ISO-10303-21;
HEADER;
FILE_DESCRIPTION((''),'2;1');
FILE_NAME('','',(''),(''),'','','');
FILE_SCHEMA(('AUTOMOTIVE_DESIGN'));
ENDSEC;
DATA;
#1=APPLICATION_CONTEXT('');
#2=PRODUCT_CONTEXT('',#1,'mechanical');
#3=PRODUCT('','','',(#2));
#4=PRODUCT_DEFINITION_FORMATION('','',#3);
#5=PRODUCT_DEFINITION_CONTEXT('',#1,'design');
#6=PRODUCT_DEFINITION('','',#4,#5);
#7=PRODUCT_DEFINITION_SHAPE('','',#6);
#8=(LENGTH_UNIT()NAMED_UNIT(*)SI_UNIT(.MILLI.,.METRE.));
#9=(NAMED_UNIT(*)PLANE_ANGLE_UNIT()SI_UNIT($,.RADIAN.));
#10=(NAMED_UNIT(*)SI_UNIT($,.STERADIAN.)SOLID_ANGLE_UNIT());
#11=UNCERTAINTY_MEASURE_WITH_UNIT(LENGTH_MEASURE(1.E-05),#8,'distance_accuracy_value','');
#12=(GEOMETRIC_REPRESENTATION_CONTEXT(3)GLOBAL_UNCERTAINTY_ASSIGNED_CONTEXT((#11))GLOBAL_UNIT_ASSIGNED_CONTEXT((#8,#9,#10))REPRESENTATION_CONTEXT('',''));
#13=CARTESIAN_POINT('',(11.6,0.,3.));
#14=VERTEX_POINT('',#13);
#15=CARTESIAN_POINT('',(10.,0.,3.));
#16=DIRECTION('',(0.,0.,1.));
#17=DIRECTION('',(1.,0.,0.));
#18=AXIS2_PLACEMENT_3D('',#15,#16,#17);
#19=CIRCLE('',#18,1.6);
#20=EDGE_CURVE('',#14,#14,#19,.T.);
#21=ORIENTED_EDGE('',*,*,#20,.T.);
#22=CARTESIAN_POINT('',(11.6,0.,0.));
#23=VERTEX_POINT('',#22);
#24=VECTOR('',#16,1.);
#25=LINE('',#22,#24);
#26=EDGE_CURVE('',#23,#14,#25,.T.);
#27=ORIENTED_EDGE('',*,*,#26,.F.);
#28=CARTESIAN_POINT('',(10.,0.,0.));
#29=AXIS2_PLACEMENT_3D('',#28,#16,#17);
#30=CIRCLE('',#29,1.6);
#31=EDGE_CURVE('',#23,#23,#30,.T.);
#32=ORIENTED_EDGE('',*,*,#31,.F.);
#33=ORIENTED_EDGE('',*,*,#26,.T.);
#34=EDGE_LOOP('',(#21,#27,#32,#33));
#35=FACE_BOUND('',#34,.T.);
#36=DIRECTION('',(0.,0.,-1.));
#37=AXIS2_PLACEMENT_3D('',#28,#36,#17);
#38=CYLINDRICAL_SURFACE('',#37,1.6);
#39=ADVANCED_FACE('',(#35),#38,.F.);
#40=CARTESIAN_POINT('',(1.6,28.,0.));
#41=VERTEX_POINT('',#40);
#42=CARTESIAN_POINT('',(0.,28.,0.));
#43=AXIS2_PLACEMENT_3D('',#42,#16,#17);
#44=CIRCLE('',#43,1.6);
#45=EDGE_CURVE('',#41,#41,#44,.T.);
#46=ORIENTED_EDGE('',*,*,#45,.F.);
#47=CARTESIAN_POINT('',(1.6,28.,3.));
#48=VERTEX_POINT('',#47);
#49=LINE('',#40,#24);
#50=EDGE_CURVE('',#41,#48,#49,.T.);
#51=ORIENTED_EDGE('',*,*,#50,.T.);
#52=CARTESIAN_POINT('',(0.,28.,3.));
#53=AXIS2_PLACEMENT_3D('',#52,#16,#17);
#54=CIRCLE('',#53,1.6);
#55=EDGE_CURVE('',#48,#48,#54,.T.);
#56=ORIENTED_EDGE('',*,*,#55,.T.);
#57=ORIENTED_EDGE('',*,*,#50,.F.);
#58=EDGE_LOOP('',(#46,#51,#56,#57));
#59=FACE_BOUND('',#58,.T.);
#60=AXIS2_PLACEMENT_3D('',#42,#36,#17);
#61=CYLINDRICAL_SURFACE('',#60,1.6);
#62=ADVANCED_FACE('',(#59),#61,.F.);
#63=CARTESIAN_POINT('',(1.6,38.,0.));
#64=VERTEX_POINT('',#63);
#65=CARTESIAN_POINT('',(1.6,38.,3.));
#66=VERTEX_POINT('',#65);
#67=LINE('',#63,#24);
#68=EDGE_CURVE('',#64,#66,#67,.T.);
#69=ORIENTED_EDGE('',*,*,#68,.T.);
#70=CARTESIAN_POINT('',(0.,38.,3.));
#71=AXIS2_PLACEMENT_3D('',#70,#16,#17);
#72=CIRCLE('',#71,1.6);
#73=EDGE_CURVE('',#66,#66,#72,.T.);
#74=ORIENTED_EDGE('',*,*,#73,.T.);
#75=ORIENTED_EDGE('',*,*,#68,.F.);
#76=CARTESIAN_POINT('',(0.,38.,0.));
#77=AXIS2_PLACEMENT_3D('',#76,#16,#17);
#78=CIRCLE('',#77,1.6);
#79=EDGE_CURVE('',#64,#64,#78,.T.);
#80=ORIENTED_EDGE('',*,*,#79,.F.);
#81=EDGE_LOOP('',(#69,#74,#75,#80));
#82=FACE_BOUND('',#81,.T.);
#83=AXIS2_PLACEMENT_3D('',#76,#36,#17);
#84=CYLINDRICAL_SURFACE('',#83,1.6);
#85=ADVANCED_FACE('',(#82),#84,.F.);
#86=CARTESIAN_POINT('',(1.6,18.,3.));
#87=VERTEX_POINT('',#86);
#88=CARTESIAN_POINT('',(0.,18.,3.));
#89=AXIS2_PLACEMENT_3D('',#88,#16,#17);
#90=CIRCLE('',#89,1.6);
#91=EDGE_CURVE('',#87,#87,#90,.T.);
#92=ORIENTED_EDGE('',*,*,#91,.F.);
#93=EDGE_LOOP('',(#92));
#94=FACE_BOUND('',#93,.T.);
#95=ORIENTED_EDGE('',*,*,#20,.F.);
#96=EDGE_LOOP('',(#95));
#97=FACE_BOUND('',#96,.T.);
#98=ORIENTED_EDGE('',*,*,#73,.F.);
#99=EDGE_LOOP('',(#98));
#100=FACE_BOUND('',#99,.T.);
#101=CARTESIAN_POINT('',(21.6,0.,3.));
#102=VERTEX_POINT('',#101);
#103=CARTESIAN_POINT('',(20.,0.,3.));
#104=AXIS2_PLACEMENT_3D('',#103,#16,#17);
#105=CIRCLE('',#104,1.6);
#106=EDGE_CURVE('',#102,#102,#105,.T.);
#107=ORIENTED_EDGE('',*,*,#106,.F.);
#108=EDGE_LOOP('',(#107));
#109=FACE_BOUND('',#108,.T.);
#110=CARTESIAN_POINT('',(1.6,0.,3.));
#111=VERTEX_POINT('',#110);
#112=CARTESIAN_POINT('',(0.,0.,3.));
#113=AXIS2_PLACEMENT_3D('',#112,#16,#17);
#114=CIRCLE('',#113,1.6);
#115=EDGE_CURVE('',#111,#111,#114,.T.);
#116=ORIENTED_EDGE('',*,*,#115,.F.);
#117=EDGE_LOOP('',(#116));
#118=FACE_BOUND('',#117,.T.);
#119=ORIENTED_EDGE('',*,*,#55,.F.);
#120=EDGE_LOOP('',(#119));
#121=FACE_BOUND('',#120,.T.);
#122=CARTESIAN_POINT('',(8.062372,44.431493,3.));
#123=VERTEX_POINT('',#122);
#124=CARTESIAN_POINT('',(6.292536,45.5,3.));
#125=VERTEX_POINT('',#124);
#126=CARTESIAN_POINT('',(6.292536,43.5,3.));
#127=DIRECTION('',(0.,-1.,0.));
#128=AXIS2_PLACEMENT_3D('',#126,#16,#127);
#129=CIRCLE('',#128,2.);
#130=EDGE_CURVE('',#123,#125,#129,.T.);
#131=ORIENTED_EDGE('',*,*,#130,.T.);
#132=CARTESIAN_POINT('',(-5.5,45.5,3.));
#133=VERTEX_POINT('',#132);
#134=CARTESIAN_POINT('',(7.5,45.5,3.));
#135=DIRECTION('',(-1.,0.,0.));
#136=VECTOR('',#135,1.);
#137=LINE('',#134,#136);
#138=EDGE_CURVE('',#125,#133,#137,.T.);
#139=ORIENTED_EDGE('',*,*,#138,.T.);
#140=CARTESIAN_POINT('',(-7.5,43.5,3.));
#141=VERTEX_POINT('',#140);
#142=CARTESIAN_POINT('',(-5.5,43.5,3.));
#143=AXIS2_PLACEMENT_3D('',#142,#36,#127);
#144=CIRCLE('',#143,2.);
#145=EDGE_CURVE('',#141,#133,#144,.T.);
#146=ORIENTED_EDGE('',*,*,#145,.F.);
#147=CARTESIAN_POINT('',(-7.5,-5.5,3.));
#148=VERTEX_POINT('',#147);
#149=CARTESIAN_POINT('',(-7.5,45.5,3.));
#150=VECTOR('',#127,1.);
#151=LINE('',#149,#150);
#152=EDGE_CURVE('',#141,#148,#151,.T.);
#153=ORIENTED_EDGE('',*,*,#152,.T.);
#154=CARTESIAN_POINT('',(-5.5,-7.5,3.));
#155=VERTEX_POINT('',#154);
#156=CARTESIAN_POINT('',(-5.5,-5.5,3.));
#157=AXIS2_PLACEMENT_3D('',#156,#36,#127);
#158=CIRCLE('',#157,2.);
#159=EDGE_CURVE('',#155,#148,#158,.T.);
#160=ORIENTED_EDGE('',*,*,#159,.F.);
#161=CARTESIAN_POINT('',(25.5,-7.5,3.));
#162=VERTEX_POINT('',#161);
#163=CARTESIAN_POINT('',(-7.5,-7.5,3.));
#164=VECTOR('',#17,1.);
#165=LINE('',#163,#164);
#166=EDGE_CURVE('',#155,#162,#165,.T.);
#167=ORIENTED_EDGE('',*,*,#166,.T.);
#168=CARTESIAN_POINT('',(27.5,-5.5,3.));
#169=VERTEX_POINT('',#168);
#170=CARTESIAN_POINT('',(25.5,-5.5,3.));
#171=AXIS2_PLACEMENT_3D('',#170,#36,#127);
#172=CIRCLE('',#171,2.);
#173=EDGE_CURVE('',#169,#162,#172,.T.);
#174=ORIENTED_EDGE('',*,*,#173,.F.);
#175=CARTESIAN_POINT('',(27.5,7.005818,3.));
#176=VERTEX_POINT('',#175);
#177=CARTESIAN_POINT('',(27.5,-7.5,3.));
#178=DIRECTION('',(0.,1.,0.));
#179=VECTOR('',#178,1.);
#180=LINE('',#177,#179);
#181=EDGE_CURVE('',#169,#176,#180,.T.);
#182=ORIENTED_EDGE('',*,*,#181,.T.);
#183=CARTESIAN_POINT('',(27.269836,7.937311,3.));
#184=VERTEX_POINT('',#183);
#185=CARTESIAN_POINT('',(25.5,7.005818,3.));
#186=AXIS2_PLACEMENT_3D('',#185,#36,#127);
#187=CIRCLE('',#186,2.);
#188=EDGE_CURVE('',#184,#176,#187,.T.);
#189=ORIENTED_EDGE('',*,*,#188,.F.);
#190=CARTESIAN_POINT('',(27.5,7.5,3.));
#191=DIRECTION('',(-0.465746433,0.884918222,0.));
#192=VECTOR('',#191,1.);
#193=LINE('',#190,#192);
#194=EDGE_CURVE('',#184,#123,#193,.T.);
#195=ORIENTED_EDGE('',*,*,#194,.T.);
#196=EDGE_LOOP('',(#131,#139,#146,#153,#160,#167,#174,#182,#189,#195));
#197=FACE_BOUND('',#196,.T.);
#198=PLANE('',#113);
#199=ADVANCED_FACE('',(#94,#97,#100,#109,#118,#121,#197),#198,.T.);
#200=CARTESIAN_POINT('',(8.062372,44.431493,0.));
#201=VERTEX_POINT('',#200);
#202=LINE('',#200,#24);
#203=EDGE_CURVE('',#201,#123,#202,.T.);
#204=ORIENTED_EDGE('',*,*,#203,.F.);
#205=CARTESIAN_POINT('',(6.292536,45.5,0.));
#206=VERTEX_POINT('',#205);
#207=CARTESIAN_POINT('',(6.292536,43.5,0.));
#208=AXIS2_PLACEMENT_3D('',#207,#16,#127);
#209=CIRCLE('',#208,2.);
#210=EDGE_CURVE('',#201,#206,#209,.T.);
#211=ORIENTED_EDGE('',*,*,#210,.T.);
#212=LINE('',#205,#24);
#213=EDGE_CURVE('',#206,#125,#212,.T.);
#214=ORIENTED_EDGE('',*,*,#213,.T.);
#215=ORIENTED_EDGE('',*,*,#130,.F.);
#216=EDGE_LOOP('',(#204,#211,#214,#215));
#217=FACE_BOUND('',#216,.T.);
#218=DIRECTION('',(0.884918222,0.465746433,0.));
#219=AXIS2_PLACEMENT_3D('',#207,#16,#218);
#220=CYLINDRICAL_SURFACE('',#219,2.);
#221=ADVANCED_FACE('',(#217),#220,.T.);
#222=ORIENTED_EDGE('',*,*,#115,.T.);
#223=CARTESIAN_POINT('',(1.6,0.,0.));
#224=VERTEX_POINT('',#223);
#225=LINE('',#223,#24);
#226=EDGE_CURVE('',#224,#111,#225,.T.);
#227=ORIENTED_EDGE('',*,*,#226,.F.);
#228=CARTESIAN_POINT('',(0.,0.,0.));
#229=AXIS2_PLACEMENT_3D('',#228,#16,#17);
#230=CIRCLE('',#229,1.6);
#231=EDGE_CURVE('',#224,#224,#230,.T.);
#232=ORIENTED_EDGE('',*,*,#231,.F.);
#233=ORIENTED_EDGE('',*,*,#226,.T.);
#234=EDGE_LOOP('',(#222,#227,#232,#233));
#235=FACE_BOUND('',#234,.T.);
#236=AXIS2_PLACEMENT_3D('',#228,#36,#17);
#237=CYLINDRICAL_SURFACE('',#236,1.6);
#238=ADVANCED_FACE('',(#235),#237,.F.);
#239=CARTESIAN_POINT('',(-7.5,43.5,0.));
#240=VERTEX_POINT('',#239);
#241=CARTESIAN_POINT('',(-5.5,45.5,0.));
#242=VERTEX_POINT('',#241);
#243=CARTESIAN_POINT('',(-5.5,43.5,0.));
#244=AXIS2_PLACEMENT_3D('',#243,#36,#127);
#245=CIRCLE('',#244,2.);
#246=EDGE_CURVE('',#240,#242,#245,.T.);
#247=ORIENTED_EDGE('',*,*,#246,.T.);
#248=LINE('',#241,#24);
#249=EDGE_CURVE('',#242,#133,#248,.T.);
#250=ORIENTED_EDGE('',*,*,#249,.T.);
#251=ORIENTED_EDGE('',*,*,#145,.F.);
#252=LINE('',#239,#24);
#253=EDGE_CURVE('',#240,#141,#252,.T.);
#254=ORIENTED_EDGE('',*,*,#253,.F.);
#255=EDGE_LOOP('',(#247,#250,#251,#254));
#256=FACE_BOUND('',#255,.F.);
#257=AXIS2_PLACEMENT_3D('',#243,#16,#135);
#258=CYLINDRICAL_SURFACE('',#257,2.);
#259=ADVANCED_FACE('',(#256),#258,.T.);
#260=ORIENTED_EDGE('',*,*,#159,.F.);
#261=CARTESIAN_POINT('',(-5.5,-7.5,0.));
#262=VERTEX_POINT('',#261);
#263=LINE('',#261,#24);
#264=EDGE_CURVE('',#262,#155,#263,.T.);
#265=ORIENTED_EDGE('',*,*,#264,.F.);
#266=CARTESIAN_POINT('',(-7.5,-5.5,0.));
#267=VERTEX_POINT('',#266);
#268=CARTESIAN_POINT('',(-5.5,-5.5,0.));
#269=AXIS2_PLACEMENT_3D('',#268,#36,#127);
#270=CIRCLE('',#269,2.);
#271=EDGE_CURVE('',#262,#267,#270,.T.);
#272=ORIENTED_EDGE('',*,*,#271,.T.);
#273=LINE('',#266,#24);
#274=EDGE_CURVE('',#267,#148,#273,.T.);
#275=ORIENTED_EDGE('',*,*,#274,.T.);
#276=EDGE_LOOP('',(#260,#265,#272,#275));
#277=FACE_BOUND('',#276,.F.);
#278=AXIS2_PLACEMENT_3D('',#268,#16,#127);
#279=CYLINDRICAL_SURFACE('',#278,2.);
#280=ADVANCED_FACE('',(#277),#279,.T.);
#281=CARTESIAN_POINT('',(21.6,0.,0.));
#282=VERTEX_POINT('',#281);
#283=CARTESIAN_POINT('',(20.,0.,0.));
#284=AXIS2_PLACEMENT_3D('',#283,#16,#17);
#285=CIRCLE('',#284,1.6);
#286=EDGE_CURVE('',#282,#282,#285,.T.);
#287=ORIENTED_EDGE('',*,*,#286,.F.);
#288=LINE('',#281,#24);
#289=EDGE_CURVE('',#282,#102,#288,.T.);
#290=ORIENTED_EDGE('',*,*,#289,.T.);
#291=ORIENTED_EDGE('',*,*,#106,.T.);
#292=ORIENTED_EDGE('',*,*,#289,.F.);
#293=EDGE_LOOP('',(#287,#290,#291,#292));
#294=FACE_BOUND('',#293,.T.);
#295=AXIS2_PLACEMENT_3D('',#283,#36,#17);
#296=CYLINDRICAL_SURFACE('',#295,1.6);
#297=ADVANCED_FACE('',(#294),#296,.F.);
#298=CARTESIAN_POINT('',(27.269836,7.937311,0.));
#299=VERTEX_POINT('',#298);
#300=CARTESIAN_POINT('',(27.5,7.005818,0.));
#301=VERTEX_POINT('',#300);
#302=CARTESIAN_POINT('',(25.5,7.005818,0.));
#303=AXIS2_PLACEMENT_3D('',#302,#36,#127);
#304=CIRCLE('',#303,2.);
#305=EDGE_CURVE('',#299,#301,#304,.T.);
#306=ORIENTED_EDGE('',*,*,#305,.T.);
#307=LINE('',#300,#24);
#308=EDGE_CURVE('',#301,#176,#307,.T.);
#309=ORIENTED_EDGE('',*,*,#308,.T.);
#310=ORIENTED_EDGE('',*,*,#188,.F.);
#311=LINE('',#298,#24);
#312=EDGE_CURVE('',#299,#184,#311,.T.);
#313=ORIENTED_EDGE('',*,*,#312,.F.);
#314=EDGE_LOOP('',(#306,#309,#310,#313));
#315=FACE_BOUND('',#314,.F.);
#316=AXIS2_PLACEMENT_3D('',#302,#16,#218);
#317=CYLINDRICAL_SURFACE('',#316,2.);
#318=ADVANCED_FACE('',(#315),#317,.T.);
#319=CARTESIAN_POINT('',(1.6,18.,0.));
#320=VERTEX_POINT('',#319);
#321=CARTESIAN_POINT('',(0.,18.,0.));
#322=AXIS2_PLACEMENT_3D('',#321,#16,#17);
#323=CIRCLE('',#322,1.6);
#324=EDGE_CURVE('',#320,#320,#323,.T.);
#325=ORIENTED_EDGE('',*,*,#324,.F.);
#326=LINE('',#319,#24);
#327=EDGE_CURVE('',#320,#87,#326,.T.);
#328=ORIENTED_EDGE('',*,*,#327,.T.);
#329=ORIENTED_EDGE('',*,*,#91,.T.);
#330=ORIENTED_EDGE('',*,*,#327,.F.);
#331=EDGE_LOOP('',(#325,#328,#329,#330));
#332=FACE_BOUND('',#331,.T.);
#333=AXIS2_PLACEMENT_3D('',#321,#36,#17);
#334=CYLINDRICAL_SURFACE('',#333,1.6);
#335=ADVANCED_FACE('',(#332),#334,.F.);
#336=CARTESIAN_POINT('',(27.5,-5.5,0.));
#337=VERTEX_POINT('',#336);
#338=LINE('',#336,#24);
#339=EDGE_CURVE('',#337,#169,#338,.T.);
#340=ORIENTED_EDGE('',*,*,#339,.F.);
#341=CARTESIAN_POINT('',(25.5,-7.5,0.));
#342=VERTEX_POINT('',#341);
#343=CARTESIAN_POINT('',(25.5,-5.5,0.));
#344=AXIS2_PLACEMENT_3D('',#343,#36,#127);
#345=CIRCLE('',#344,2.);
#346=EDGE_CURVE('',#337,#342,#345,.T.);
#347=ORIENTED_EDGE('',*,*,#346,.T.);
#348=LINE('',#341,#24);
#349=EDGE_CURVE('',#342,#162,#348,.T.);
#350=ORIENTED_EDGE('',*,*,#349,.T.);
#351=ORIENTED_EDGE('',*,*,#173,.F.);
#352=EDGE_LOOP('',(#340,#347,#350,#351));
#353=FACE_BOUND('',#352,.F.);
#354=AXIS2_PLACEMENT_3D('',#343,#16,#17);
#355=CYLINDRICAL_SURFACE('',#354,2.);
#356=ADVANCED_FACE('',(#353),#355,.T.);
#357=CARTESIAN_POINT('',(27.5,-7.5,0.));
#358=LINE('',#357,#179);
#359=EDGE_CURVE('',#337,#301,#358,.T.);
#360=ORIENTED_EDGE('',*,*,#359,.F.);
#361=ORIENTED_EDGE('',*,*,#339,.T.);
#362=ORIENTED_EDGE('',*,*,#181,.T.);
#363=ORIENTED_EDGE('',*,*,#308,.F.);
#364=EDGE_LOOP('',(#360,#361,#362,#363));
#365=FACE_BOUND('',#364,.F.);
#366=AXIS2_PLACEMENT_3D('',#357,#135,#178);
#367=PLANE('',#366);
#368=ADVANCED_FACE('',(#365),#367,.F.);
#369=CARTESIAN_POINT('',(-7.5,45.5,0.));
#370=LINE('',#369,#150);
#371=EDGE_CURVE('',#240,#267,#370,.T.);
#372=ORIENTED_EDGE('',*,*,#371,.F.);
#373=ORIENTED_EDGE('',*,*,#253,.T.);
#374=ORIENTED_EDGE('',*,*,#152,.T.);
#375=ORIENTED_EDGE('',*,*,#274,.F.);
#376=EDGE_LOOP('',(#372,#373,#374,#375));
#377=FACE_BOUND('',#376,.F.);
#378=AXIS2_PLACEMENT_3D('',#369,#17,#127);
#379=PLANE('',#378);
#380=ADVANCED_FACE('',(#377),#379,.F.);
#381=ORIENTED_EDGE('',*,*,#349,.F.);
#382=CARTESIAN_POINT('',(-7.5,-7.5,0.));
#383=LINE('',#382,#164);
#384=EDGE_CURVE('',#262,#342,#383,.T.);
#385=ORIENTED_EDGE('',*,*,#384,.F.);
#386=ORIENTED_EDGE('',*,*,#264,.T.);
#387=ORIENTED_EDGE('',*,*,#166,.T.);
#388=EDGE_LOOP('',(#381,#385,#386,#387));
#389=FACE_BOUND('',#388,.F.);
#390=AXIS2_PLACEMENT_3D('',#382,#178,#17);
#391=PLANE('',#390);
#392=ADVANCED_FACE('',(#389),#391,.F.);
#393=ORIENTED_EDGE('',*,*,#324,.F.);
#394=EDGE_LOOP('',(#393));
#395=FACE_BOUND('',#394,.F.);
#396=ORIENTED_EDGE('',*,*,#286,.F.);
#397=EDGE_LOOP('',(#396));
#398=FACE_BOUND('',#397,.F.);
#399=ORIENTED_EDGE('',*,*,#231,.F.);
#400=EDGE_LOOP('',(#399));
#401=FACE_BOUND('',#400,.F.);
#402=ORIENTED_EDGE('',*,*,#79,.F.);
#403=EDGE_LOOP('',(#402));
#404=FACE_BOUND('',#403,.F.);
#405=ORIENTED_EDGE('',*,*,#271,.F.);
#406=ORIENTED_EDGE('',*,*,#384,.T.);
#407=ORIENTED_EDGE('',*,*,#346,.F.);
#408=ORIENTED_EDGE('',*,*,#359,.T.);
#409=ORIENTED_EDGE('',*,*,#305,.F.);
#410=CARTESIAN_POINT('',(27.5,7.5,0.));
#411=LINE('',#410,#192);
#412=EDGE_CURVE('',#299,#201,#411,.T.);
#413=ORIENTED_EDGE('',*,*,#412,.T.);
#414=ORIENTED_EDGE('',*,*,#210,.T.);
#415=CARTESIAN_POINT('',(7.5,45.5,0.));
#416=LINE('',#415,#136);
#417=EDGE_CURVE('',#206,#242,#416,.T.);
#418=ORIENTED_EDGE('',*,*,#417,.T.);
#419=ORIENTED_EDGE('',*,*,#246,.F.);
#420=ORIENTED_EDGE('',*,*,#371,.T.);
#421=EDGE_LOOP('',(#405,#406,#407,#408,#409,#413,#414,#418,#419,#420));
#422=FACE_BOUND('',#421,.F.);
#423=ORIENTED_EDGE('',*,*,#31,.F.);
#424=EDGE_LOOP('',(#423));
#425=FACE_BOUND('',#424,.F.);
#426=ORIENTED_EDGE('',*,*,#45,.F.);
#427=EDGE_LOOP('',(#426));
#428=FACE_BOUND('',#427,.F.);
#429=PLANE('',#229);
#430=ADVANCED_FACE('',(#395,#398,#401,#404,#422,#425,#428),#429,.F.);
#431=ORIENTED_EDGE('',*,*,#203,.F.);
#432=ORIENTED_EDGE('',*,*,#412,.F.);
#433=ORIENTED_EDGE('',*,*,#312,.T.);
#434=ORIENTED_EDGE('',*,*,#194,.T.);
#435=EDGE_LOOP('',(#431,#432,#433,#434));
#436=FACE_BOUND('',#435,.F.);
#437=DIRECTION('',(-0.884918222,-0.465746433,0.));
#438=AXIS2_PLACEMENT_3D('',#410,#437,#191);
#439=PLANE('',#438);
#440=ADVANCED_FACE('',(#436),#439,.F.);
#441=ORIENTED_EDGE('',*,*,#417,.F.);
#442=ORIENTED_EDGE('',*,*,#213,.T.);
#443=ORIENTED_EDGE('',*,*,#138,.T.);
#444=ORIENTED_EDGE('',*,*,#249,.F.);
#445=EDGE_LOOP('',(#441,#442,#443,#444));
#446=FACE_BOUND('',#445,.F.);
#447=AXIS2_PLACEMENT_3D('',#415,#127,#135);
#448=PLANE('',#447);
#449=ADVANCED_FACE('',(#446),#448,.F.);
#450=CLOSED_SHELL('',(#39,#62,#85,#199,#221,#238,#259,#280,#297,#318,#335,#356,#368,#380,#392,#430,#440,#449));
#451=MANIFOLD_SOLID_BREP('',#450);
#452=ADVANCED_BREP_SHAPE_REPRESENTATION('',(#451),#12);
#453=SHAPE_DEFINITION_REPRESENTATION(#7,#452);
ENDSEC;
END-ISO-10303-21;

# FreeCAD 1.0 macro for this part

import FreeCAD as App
import Part
import Sketcher
Q = App.Units.Quantity


def edges_at(feature, points):
    """Names of the edges that pass closest to the given points."""
    edges = feature.Shape.Edges
    near = lambda p: min(range(len(edges)), key=lambda i: edges[i].distToShape(Part.Vertex(*p))[0])
    return sorted({f"Edge{near(p) + 1}" for p in points})


def add_polygon(sketch, points):
    """Adds a closed chain of lines whose ends are joined by coincident constraints."""
    first, n = sketch.GeometryCount, len(points)
    for a, b in zip(points, points[1:] + points[:1]):
        sketch.addGeometry(Part.LineSegment(App.Vector(*a, 0), App.Vector(*b, 0)), False)
    for i in range(n):
        sketch.addConstraint(Sketcher.Constraint("Coincident", first + i, 2, first + (i + 1) % n, 1))

doc = App.newDocument("Part")
params = doc.addObject("Spreadsheet::Sheet", "Params")
for row, (alias, value) in enumerate([
    ("sketch1_diameter", "3.2 mm"),
    ("pad1_length", "3 mm"),
    ("fillet_radius", "2 mm"),
], start=1):
    params.set(f"A{row}", alias)
    params.set(f"B{row}", "=" + value)
    params.setAlias(f"B{row}", alias)

body = doc.addObject("PartDesign::Body", "Body")

# Sketch on XY plane
sketch1 = doc.addObject("Sketcher::SketchObject", "Sketch")
body.addObject(sketch1)
sketch1.AttachmentSupport = (doc.XY_Plane, [""])
sketch1.MapMode = "FlatFace"
add_polygon(sketch1, [(27.5, 7.5), (7.5, 45.5), (-7.5, 45.5), (-7.5, -7.5), (27.5, -7.5)])  # lines 0-4
sketch1.addGeometry(Part.Circle(App.Vector(0, 0, 0), App.Vector(0, 0, 1), 1.6), False)  # 5
sketch1.addGeometry(Part.Circle(App.Vector(0, 18, 0), App.Vector(0, 0, 1), 1.6), False)  # 6
sketch1.addGeometry(Part.Circle(App.Vector(10, 0, 0), App.Vector(0, 0, 1), 1.6), False)  # 7
sketch1.addGeometry(Part.Circle(App.Vector(20, 0, 0), App.Vector(0, 0, 1), 1.6), False)  # 8
sketch1.addGeometry(Part.Circle(App.Vector(0, 28, 0), App.Vector(0, 0, 1), 1.6), False)  # 9
sketch1.addGeometry(Part.Circle(App.Vector(0, 38, 0), App.Vector(0, 0, 1), 1.6), False)  # 10
sketch1.addConstraint([
    Sketcher.Constraint("Horizontal", 1),
    Sketcher.Constraint("Vertical", 2),
    Sketcher.Constraint("Horizontal", 3),
    Sketcher.Constraint("Vertical", 4),
    Sketcher.Constraint("Coincident", 5, 3, -1, 1),
    Sketcher.Constraint("Equal", 5, 6),
    Sketcher.Constraint("Equal", 6, 7),
    Sketcher.Constraint("Equal", 7, 8),
    Sketcher.Constraint("Equal", 8, 9),
    Sketcher.Constraint("Equal", 9, 10),
    Sketcher.Constraint("PointOnObject", 6, 3, -2),
    Sketcher.Constraint("PointOnObject", 7, 3, -1),
    Sketcher.Constraint("PointOnObject", 8, 3, -1),
    Sketcher.Constraint("PointOnObject", 9, 3, -2),
    Sketcher.Constraint("PointOnObject", 10, 3, -2),
    Sketcher.Constraint("Equal", 1, 4),
    Sketcher.Constraint("Diameter", 5, Q("3.2 mm")),
    Sketcher.Constraint("DistanceY", -1, 1, 6, 3, Q("18 mm")),
    Sketcher.Constraint("DistanceX", -1, 1, 7, 3, Q("10 mm")),
    Sketcher.Constraint("DistanceX", 7, 3, 8, 3, Q("10 mm")),
    Sketcher.Constraint("DistanceY", 6, 3, 9, 3, Q("10 mm")),
    Sketcher.Constraint("DistanceY", 9, 3, 10, 3, Q("10 mm")),
    Sketcher.Constraint("DistanceX", -1, 1, 0, 2, Q("7.5 mm")),
    Sketcher.Constraint("DistanceX", 1, 2, -1, 1, Q("7.5 mm")),
    Sketcher.Constraint("DistanceY", 2, 2, -1, 1, Q("7.5 mm")),
    Sketcher.Constraint("DistanceY", 10, 3, 0, 2, Q("7.5 mm")),
    Sketcher.Constraint("DistanceX", 8, 3, 3, 2, Q("7.5 mm")),
])
sketch1.setExpression("Constraints[21]", "Params.sketch1_diameter")
pad1 = doc.addObject("PartDesign::Pad", "Pad")
body.addObject(pad1)
pad1.Profile = sketch1
pad1.setExpression("Length", "Params.pad1_length")
doc.recompute()

fillet = doc.addObject("PartDesign::Fillet", "Fillet")
body.addObject(fillet)
fillet.Base = (pad1, edges_at(pad1, [
    (-7.5, 45.5, 1.5),
    (7.5, 45.5, 1.5),
    (27.5, 7.5, 1.5),
    (27.5, -7.5, 1.5),
    (-7.5, -7.5, 1.5),
]))
fillet.setExpression("Radius", "Params.fillet_radius")

doc.recompute()
